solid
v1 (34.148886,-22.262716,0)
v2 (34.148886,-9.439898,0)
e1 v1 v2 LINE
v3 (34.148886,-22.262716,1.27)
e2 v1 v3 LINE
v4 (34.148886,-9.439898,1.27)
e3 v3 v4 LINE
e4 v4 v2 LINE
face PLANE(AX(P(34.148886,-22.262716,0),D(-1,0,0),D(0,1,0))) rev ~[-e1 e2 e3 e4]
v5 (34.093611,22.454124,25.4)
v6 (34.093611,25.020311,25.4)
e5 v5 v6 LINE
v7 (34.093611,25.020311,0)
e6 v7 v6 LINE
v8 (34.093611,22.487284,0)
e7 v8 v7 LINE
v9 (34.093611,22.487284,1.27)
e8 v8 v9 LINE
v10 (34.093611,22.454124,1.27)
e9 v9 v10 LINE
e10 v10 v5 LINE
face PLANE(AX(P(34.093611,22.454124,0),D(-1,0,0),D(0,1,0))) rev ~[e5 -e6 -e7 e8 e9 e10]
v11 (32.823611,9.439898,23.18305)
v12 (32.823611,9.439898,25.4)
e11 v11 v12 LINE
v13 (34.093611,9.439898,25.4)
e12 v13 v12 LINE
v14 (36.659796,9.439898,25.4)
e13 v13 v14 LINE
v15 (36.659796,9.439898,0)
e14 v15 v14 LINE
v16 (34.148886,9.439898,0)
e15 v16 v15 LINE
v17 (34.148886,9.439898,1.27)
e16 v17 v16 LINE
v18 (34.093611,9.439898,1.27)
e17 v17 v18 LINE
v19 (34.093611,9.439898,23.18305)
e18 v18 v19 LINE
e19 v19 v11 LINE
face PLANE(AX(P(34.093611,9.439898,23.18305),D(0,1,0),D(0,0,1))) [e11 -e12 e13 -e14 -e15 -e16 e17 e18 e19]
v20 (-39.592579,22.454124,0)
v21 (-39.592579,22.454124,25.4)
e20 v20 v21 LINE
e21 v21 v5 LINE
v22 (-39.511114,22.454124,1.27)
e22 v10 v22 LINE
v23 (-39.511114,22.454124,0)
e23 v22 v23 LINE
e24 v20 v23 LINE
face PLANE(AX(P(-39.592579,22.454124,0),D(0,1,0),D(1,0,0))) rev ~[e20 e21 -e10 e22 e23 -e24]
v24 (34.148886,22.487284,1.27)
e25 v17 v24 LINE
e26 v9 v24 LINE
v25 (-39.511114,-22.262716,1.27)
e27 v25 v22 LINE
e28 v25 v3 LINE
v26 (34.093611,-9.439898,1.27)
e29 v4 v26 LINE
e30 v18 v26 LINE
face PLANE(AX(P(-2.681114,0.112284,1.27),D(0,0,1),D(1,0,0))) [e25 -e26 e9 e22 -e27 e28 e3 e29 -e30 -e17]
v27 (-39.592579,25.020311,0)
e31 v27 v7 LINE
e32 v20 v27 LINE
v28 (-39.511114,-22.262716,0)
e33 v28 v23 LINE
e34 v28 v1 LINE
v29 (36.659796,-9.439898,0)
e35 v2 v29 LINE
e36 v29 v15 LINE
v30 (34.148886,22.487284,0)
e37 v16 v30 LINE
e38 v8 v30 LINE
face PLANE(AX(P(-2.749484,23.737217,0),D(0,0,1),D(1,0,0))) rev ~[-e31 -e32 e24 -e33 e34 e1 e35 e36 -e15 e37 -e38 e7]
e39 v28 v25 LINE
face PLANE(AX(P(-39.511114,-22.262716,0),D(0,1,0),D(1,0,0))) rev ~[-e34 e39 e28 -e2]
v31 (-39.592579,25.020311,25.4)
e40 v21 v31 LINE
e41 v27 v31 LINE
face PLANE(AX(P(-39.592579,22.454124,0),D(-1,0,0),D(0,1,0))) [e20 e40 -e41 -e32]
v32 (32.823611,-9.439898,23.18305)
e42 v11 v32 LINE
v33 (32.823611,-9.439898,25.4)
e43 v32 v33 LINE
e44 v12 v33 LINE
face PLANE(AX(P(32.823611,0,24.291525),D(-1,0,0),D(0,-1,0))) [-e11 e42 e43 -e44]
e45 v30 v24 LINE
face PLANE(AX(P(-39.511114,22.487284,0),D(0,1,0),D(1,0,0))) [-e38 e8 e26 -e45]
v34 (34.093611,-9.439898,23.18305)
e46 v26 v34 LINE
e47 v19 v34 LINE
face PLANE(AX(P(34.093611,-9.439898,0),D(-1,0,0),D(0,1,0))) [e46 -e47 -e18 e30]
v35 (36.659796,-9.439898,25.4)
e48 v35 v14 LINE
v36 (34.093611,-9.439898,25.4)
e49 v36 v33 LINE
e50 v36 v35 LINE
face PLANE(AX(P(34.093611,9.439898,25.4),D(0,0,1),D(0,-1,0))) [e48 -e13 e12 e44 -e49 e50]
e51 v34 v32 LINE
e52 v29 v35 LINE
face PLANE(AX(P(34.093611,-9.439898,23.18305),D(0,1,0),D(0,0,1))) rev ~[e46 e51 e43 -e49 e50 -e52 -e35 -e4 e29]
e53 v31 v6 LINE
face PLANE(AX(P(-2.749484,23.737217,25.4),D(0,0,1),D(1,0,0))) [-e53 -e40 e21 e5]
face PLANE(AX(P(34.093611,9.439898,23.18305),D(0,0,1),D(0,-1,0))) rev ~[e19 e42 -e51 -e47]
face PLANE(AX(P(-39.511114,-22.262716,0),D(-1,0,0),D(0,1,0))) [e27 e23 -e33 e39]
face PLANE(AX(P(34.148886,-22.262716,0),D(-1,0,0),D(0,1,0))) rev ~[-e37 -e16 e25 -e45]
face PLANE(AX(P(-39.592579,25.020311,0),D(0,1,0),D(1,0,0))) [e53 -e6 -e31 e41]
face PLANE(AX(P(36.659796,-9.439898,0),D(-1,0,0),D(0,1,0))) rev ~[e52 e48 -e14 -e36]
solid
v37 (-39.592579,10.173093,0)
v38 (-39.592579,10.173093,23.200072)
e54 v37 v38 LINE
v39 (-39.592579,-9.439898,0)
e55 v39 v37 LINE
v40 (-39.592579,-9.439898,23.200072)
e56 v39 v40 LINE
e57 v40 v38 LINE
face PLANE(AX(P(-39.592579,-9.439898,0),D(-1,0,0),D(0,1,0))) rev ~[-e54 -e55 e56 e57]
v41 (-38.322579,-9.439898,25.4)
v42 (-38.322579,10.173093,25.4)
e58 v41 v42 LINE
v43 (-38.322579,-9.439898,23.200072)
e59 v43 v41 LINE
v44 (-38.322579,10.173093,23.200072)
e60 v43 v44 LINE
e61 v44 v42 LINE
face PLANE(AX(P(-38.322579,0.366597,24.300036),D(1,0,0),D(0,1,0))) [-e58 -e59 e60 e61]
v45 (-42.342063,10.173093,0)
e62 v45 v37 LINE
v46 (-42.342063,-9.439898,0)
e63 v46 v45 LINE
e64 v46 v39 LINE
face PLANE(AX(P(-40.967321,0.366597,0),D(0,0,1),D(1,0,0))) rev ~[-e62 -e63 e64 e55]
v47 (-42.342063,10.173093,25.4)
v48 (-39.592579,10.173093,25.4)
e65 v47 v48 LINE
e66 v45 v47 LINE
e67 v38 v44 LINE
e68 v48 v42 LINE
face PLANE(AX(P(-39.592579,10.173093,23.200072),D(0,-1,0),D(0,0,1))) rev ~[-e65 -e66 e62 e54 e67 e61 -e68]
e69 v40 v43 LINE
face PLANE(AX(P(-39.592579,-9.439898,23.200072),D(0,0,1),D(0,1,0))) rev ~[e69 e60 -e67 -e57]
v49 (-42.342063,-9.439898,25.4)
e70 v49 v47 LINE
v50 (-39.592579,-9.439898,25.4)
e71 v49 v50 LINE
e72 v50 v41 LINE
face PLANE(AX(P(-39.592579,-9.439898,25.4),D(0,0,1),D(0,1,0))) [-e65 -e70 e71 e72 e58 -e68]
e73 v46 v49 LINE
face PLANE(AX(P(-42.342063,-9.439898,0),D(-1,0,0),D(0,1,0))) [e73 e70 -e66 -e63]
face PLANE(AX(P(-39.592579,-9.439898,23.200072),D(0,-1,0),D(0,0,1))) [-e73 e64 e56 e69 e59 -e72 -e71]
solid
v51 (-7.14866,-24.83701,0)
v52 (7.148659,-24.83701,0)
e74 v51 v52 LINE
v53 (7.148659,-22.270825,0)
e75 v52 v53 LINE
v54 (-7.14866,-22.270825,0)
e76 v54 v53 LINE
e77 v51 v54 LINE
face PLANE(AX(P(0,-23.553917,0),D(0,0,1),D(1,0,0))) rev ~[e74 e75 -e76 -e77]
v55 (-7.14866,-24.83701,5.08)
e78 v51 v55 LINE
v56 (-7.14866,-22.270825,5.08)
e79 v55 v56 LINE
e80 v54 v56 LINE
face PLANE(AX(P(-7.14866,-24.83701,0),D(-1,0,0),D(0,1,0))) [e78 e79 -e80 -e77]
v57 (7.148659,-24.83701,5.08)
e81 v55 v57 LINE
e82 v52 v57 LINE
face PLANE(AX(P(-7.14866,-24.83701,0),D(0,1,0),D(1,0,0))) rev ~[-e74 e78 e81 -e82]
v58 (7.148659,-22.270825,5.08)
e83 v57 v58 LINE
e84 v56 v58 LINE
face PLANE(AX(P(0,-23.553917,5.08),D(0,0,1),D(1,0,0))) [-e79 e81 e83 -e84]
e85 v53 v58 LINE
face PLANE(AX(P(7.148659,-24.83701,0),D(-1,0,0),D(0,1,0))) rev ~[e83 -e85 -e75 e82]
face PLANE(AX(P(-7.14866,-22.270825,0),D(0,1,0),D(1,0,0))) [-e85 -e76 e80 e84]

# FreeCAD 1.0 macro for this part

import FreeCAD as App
import Part
import Sketcher

V = App.Vector
Q = App.Units.Quantity

doc = App.newDocument("Part")
body = doc.addObject("PartDesign::Body", "Body")

# Sketch on XY plane
sketch1 = body.newObject("Sketcher::SketchObject", "Sketch")
sketch1.AttachmentSupport = (doc.getObject("XY_Plane"), [""])
sketch1.MapMode = "FlatFace"
sketch1.addGeometry([
    Part.LineSegment(V(-40, 22, 0), V(-40, -22, 0)),
    Part.LineSegment(V(-40, -22, 0), V(34, -22, 0)),
    Part.LineSegment(V(34, -22, 0), V(34, 22, 0)),
    Part.LineSegment(V(34, 22, 0), V(-40, 22, 0)),
], False)
sketch1.addConstraint([
    Sketcher.Constraint("Coincident", 0, 2, 1, 1),
    Sketcher.Constraint("Coincident", 1, 2, 2, 1),
    Sketcher.Constraint("Coincident", 2, 2, 3, 1),
    Sketcher.Constraint("Coincident", 3, 2, 0, 1),
    Sketcher.Constraint("Vertical", 0),
    Sketcher.Constraint("Horizontal", 1),
    Sketcher.Constraint("Vertical", 2),
    Sketcher.Constraint("Horizontal", 3),
    Sketcher.Constraint("DistanceX", 1, 1, 1, 2, Q("2.9 in")),
    Sketcher.Constraint("DistanceY", 0, 2, 0, 1, 44.75),
    Sketcher.Constraint("DistanceX", 0, 2, -1, 1, 39.511114),
    Sketcher.Constraint("DistanceY", 0, 2, -1, 1, 22.262716),
])
pad1 = body.newObject("PartDesign::Pad", "Pad")
pad1.Profile = sketch1
pad1.Length = Q("0.05 in")

# Sketch on XY plane
sketch2 = body.newObject("Sketcher::SketchObject", "Sketch001")
sketch2.AttachmentSupport = (doc.getObject("XY_Plane"), [""])
sketch2.MapMode = "FlatFace"
sketch2.addGeometry([
    Part.LineSegment(V(-39.6, 25, 0), V(-39.6, 22.5, 0)),  # 0
    Part.LineSegment(V(-39.6, 22.5, 0), V(34.1, 22.5, 0)),  # 1
    Part.LineSegment(V(34.1, 22.5, 0), V(34.1, 25, 0)),  # 2
    Part.LineSegment(V(34.1, 25, 0), V(-39.6, 25, 0)),  # 3
    Part.LineSegment(V(34.1, 9.4, 0), V(34.1, -9.4, 0)),  # 4
    Part.LineSegment(V(34.1, -9.4, 0), V(36.7, -9.4, 0)),  # 5
    Part.LineSegment(V(36.7, -9.4, 0), V(36.7, 9.4, 0)),  # 6
    Part.LineSegment(V(36.7, 9.4, 0), V(34.1, 9.4, 0)),  # 7
], False)
sketch2.addConstraint([
    Sketcher.Constraint("Coincident", 0, 2, 1, 1),
    Sketcher.Constraint("Coincident", 1, 2, 2, 1),
    Sketcher.Constraint("Coincident", 2, 2, 3, 1),
    Sketcher.Constraint("Coincident", 3, 2, 0, 1),
    Sketcher.Constraint("Coincident", 4, 2, 5, 1),
    Sketcher.Constraint("Coincident", 5, 2, 6, 1),
    Sketcher.Constraint("Coincident", 6, 2, 7, 1),
    Sketcher.Constraint("Coincident", 7, 2, 4, 1),
    Sketcher.Constraint("Vertical", 0),
    Sketcher.Constraint("Horizontal", 1),
    Sketcher.Constraint("Vertical", 2),
    Sketcher.Constraint("Horizontal", 3),
    Sketcher.Constraint("Vertical", 4),
    Sketcher.Constraint("Horizontal", 5),
    Sketcher.Constraint("Vertical", 6),
    Sketcher.Constraint("Horizontal", 7),
    Sketcher.Constraint("Vertical", 2, 2, 4, 2),
    Sketcher.Constraint("Equal", 7, 0),
    Sketcher.Constraint("DistanceX", 1, 1, 1, 2, 73.68619),
    Sketcher.Constraint("DistanceX", 5, 1, 5, 2, 2.566185),
    Sketcher.Constraint("DistanceY", 4, 2, 4, 1, 18.879795),
    Sketcher.Constraint("DistanceX", 0, 2, -1, 1, 39.592579),
    Sketcher.Constraint("DistanceY", -1, 1, 2, 2, 25.020311),
    Sketcher.Constraint("DistanceY", 4, 2, 1, 2, 31.894022),
])
pad2 = body.newObject("PartDesign::Pad", "Pad001")
pad2.Profile = sketch2
pad2.Length = Q("1 in")

# Sketch on XZ plane
sketch3 = body.newObject("Sketcher::SketchObject", "Sketch002")
sketch3.AttachmentSupport = (doc.getObject("XZ_Plane"), [""])
sketch3.MapMode = "FlatFace"
sketch3.AttachmentOffset = App.Placement(V(0, 0, -22.454124), App.Rotation())
sketch3.addGeometry([
    Part.LineSegment(V(-39.6, 25.4, 0), V(-39.6, 23.2, 0)),
    Part.LineSegment(V(-39.6, 23.2, 0), V(34.1, 23.2, 0)),
    Part.LineSegment(V(34.1, 23.2, 0), V(34.1, 25.4, 0)),
    Part.LineSegment(V(34.1, 25.4, 0), V(-39.6, 25.4, 0)),
], False)
sketch3.addConstraint([
    Sketcher.Constraint("Coincident", 0, 2, 1, 1),
    Sketcher.Constraint("Coincident", 1, 2, 2, 1),
    Sketcher.Constraint("Coincident", 2, 2, 3, 1),
    Sketcher.Constraint("Coincident", 3, 2, 0, 1),
    Sketcher.Constraint("Vertical", 0),
    Sketcher.Constraint("Horizontal", 1),
    Sketcher.Constraint("Vertical", 2),
    Sketcher.Constraint("Horizontal", 3),
    Sketcher.Constraint("DistanceY", -1, 1, 2, 2, Q("1 in")),
    Sketcher.Constraint("DistanceX", 1, 1, 1, 2, 73.68619),
    Sketcher.Constraint("DistanceY", 0, 2, 0, 1, 2.212681),
    Sketcher.Constraint("DistanceX", 0, 2, -1, 1, 39.592579),
])
pad3 = body.newObject("PartDesign::Pad", "Pad002")
pad3.Profile = sketch3
pad3.Length = Q("0.05 in")
pad3.Reversed = True

# Sketch on YZ plane
sketch4 = body.newObject("Sketcher::SketchObject", "Sketch003")
sketch4.AttachmentSupport = (doc.getObject("YZ_Plane"), [""])
sketch4.MapMode = "FlatFace"
sketch4.AttachmentOffset = App.Placement(V(0, 0, 34.093611), App.Rotation())
sketch4.addGeometry([
    Part.LineSegment(V(9.4, 25.4, 0), V(9.4, 23.2, 0)),
    Part.LineSegment(V(9.4, 23.2, 0), V(-9.4, 23.2, 0)),
    Part.LineSegment(V(-9.4, 23.2, 0), V(-9.4, 25.4, 0)),
    Part.LineSegment(V(-9.4, 25.4, 0), V(9.4, 25.4, 0)),
], False)
sketch4.addConstraint([
    Sketcher.Constraint("Coincident", 0, 2, 1, 1),
    Sketcher.Constraint("Coincident", 1, 2, 2, 1),
    Sketcher.Constraint("Coincident", 2, 2, 3, 1),
    Sketcher.Constraint("Coincident", 3, 2, 0, 1),
    Sketcher.Constraint("Vertical", 0),
    Sketcher.Constraint("Horizontal", 1),
    Sketcher.Constraint("Vertical", 2),
    Sketcher.Constraint("Horizontal", 3),
    Sketcher.Constraint("DistanceY", -1, 1, 2, 2, Q("1 in")),
    Sketcher.Constraint("DistanceY", 0, 2, 0, 1, 2.21695),
    Sketcher.Constraint("DistanceX", 1, 2, 1, 1, 18.879795),
    Sketcher.Constraint("DistanceX", -1, 1, 0, 2, 9.439898),
])
pad4 = body.newObject("PartDesign::Pad", "Pad003")
pad4.Profile = sketch4
pad4.Length = Q("0.05 in")
pad4.Reversed = True
body2 = doc.addObject("PartDesign::Body", "Body001")

# Sketch on XY plane
sketch5 = body2.newObject("Sketcher::SketchObject", "Sketch004")
sketch5.AttachmentSupport = (doc.getObject("XY_Plane001"), [""])
sketch5.MapMode = "FlatFace"
sketch5.addGeometry([
    Part.LineSegment(V(-42.3, 10.2, 0), V(-42.3, -9.4, 0)),
    Part.LineSegment(V(-42.3, -9.4, 0), V(-39.6, -9.4, 0)),
    Part.LineSegment(V(-39.6, -9.4, 0), V(-39.6, 10.2, 0)),
    Part.LineSegment(V(-39.6, 10.2, 0), V(-42.3, 10.2, 0)),
], False)
sketch5.addConstraint([
    Sketcher.Constraint("Coincident", 0, 2, 1, 1),
    Sketcher.Constraint("Coincident", 1, 2, 2, 1),
    Sketcher.Constraint("Coincident", 2, 2, 3, 1),
    Sketcher.Constraint("Coincident", 3, 2, 0, 1),
    Sketcher.Constraint("Vertical", 0),
    Sketcher.Constraint("Horizontal", 1),
    Sketcher.Constraint("Vertical", 2),
    Sketcher.Constraint("Horizontal", 3),
    Sketcher.Constraint("DistanceY", 0, 2, 0, 1, 19.61299),
    Sketcher.Constraint("DistanceX", 1, 1, 1, 2, 2.749484),
    Sketcher.Constraint("DistanceX", 1, 2, -1, 1, 39.592579),
    Sketcher.Constraint("DistanceY", 0, 2, -1, 1, 9.439898),
])
pad5 = body2.newObject("PartDesign::Pad", "Pad004")
pad5.Profile = sketch5
pad5.Length = Q("1 in")

# Sketch on YZ plane
sketch6 = body2.newObject("Sketcher::SketchObject", "Sketch005")
sketch6.AttachmentSupport = (doc.getObject("YZ_Plane001"), [""])
sketch6.MapMode = "FlatFace"
sketch6.AttachmentOffset = App.Placement(V(0, 0, -39.592579), App.Rotation())
sketch6.addGeometry([
    Part.LineSegment(V(-9.4, 25.4, 0), V(-9.4, 23.2, 0)),
    Part.LineSegment(V(-9.4, 23.2, 0), V(10.2, 23.2, 0)),
    Part.LineSegment(V(10.2, 23.2, 0), V(10.2, 25.4, 0)),
    Part.LineSegment(V(10.2, 25.4, 0), V(-9.4, 25.4, 0)),
], False)
sketch6.addConstraint([
    Sketcher.Constraint("Coincident", 0, 2, 1, 1),
    Sketcher.Constraint("Coincident", 1, 2, 2, 1),
    Sketcher.Constraint("Coincident", 2, 2, 3, 1),
    Sketcher.Constraint("Coincident", 3, 2, 0, 1),
    Sketcher.Constraint("Vertical", 0),
    Sketcher.Constraint("Horizontal", 1),
    Sketcher.Constraint("Vertical", 2),
    Sketcher.Constraint("Horizontal", 3),
    Sketcher.Constraint("DistanceY", -1, 1, 2, 2, Q("1 in")),
    Sketcher.Constraint("DistanceX", 1, 1, 1, 2, 19.61299),
    Sketcher.Constraint("DistanceY", 0, 2, 0, 1, 2.199928),
    Sketcher.Constraint("DistanceX", 0, 2, -1, 1, 9.439898),
])
pad6 = body2.newObject("PartDesign::Pad", "Pad005")
pad6.Profile = sketch6
pad6.Length = Q("0.05 in")
body3 = doc.addObject("PartDesign::Body", "Body002")

# Sketch on XY plane
sketch7 = body3.newObject("Sketcher::SketchObject", "Sketch006")
sketch7.AttachmentSupport = (doc.getObject("XY_Plane002"), [""])
sketch7.MapMode = "FlatFace"
sketch7.addGeometry([
    Part.LineSegment(V(-7.1, -22.3, 0), V(-7.1, -24.8, 0)),
    Part.LineSegment(V(-7.1, -24.8, 0), V(7.1, -24.8, 0)),
    Part.LineSegment(V(7.1, -24.8, 0), V(7.1, -22.3, 0)),
    Part.LineSegment(V(7.1, -22.3, 0), V(-7.1, -22.3, 0)),
], False)
sketch7.addConstraint([
    Sketcher.Constraint("Coincident", 0, 2, 1, 1),
    Sketcher.Constraint("Coincident", 1, 2, 2, 1),
    Sketcher.Constraint("Coincident", 2, 2, 3, 1),
    Sketcher.Constraint("Coincident", 3, 2, 0, 1),
    Sketcher.Constraint("Vertical", 0),
    Sketcher.Constraint("Horizontal", 1),
    Sketcher.Constraint("Vertical", 2),
    Sketcher.Constraint("Horizontal", 3),
    Sketcher.Constraint("DistanceX", 1, 1, 1, 2, 14.29732),
    Sketcher.Constraint("DistanceY", 0, 2, 0, 1, 2.566185),
    Sketcher.Constraint("DistanceX", 0, 2, -1, 1, 7.14866),
    Sketcher.Constraint("DistanceY", 0, 2, -1, 1, 24.83701),
])
pad7 = body3.newObject("PartDesign::Pad", "Pad006")
pad7.Profile = sketch7
pad7.Length = Q("0.2 in")

doc.recompute()
